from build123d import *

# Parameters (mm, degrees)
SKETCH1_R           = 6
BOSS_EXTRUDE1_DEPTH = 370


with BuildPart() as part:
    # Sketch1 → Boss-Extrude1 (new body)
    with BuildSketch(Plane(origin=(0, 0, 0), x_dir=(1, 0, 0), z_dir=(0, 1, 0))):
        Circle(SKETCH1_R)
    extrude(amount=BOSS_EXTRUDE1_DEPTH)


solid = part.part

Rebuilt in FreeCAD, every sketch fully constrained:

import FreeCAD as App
import Part
import Sketcher
from FreeCAD import Vector
Q = App.Units.Quantity

doc = App.newDocument("Part")
body = doc.addObject("PartDesign::Body", "Body")

# Sketch on XZ plane
sketch1 = body.newObject("Sketcher::SketchObject", "Sketch")
sketch1.AttachmentSupport = (doc.getObject("XZ_Plane"), [""])
sketch1.MapMode = "FlatFace"
sketch1.addGeometry(Part.Circle(Vector(0, 0, 0), Vector(0, 0, 1), 6), False)
sketch1.addConstraint([
    Sketcher.Constraint("Coincident", 0, 3, -1, 1),
    Sketcher.Constraint("Diameter", 0, Q("12 mm")),
])
pad1 = body.newObject("PartDesign::Pad", "Pad")
pad1.Profile = sketch1
pad1.Length = 370
pad1.Reversed = True

doc.recompute()
